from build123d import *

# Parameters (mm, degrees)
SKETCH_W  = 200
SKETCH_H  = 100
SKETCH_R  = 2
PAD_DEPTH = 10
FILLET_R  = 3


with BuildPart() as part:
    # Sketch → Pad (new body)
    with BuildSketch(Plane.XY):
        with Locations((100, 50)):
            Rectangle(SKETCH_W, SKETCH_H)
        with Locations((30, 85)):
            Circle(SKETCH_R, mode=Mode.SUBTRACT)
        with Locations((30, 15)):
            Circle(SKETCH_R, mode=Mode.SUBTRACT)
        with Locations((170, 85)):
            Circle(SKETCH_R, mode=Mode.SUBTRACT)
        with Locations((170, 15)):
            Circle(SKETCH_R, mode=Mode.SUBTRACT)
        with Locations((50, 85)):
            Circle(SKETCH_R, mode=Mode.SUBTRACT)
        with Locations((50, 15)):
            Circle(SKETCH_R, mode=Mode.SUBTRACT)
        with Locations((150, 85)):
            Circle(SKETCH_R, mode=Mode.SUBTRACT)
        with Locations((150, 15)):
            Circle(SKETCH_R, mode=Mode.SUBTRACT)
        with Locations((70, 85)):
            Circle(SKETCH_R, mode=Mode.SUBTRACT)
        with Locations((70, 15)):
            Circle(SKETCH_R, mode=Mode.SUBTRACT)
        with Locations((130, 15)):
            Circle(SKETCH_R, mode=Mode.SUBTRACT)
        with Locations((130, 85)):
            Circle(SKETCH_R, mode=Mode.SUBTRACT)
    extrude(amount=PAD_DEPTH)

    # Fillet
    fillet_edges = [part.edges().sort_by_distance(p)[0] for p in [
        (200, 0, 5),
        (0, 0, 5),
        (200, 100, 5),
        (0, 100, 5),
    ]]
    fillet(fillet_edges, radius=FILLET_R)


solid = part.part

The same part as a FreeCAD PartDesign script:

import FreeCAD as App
import Part
import Sketcher
Q = App.Units.Quantity


def edges_at(feature, points):
    """Names of the edges that pass closest to the given points."""
    edges = feature.Shape.Edges
    near = lambda p: min(range(len(edges)), key=lambda i: edges[i].distToShape(Part.Vertex(*p))[0])
    return sorted({f"Edge{near(p) + 1}" for p in points})

doc = App.newDocument("Part")
body = doc.addObject("PartDesign::Body", "Body")

# Sketch on XY plane
sketch1 = doc.addObject("Sketcher::SketchObject", "Sketch")
body.addObject(sketch1)
sketch1.AttachmentSupport = (doc.XY_Plane, [""])
sketch1.MapMode = "FlatFace"
sketch1.addGeometry(Part.LineSegment(App.Vector(0, 100, 0), App.Vector(0, 0, 0)), False)
sketch1.addGeometry(Part.LineSegment(App.Vector(0, 0, 0), App.Vector(200, 0, 0)), False)
sketch1.addGeometry(Part.LineSegment(App.Vector(200, 0, 0), App.Vector(200, 100, 0)), False)
sketch1.addGeometry(Part.LineSegment(App.Vector(200, 100, 0), App.Vector(0, 100, 0)), False)
sketch1.addGeometry(Part.Circle(App.Vector(30, 15, 0), App.Vector(0, 0, 1), 2), False)
sketch1.addGeometry(Part.Circle(App.Vector(50, 15, 0), App.Vector(0, 0, 1), 2), False)
sketch1.addGeometry(Part.Circle(App.Vector(70, 15, 0), App.Vector(0, 0, 1), 2), False)
sketch1.addGeometry(Part.Circle(App.Vector(130, 15, 0), App.Vector(0, 0, 1), 2), False)
sketch1.addGeometry(Part.Circle(App.Vector(150, 15, 0), App.Vector(0, 0, 1), 2), False)
sketch1.addGeometry(Part.Circle(App.Vector(170, 15, 0), App.Vector(0, 0, 1), 2), False)
sketch1.addGeometry(Part.Circle(App.Vector(30, 85, 0), App.Vector(0, 0, 1), 2), False)
sketch1.addGeometry(Part.Circle(App.Vector(50, 85, 0), App.Vector(0, 0, 1), 2), False)
sketch1.addGeometry(Part.Circle(App.Vector(70, 85, 0), App.Vector(0, 0, 1), 2), False)
sketch1.addGeometry(Part.Circle(App.Vector(130, 85, 0), App.Vector(0, 0, 1), 2), False)
sketch1.addGeometry(Part.Circle(App.Vector(150, 85, 0), App.Vector(0, 0, 1), 2), False)
sketch1.addGeometry(Part.Circle(App.Vector(170, 85, 0), App.Vector(0, 0, 1), 2), False)
sketch1.addConstraint(Sketcher.Constraint("Coincident", 0, 2, 1, 1))
sketch1.addConstraint(Sketcher.Constraint("Coincident", 1, 2, 2, 1))
sketch1.addConstraint(Sketcher.Constraint("Coincident", 2, 2, 3, 1))
sketch1.addConstraint(Sketcher.Constraint("Coincident", 3, 2, 0, 1))
sketch1.addConstraint(Sketcher.Constraint("Vertical", 0))
sketch1.addConstraint(Sketcher.Constraint("Horizontal", 1))
sketch1.addConstraint(Sketcher.Constraint("Vertical", 2))
sketch1.addConstraint(Sketcher.Constraint("Horizontal", 3))
sketch1.addConstraint(Sketcher.Constraint("Coincident", 0, 2, -1, 1))
sketch1.addConstraint(Sketcher.Constraint("Equal", 4, 5))
sketch1.addConstraint(Sketcher.Constraint("Equal", 5, 6))
sketch1.addConstraint(Sketcher.Constraint("Equal", 6, 7))
sketch1.addConstraint(Sketcher.Constraint("Equal", 7, 8))
sketch1.addConstraint(Sketcher.Constraint("Equal", 8, 9))
sketch1.addConstraint(Sketcher.Constraint("Equal", 9, 10))
sketch1.addConstraint(Sketcher.Constraint("Equal", 10, 11))
sketch1.addConstraint(Sketcher.Constraint("Equal", 11, 12))
sketch1.addConstraint(Sketcher.Constraint("Equal", 12, 13))
sketch1.addConstraint(Sketcher.Constraint("Equal", 13, 14))
sketch1.addConstraint(Sketcher.Constraint("Equal", 14, 15))
sketch1.addConstraint(Sketcher.Constraint("Horizontal", 4, 3, 5, 3))
sketch1.addConstraint(Sketcher.Constraint("Horizontal", 5, 3, 6, 3))
sketch1.addConstraint(Sketcher.Constraint("Horizontal", 6, 3, 7, 3))
sketch1.addConstraint(Sketcher.Constraint("Horizontal", 7, 3, 8, 3))
sketch1.addConstraint(Sketcher.Constraint("Horizontal", 8, 3, 9, 3))
sketch1.addConstraint(Sketcher.Constraint("Horizontal", 10, 3, 11, 3))
sketch1.addConstraint(Sketcher.Constraint("Horizontal", 11, 3, 12, 3))
sketch1.addConstraint(Sketcher.Constraint("Horizontal", 12, 3, 13, 3))
sketch1.addConstraint(Sketcher.Constraint("Horizontal", 13, 3, 14, 3))
sketch1.addConstraint(Sketcher.Constraint("Horizontal", 14, 3, 15, 3))
sketch1.addConstraint(Sketcher.Constraint("Vertical", 4, 3, 10, 3))
sketch1.addConstraint(Sketcher.Constraint("Vertical", 5, 3, 11, 3))
sketch1.addConstraint(Sketcher.Constraint("Vertical", 6, 3, 12, 3))
sketch1.addConstraint(Sketcher.Constraint("Vertical", 7, 3, 13, 3))
sketch1.addConstraint(Sketcher.Constraint("Vertical", 8, 3, 14, 3))
sketch1.addConstraint(Sketcher.Constraint("Vertical", 9, 3, 15, 3))
sketch1.addConstraint(Sketcher.Constraint("Diameter", 4, Q("4 mm")))
sketch1.addConstraint(Sketcher.Constraint("DistanceX", 1, 1, 1, 2, Q("200 mm")))
sketch1.addConstraint(Sketcher.Constraint("DistanceY", 0, 2, 0, 1, Q("100 mm")))
sketch1.addConstraint(Sketcher.Constraint("DistanceX", -1, 1, 4, 3, Q("30 mm")))
sketch1.addConstraint(Sketcher.Constraint("DistanceY", -1, 1, 4, 3, Q("15 mm")))
sketch1.addConstraint(Sketcher.Constraint("DistanceX", -1, 1, 5, 3, Q("50 mm")))
sketch1.addConstraint(Sketcher.Constraint("DistanceX", -1, 1, 6, 3, Q("70 mm")))
sketch1.addConstraint(Sketcher.Constraint("DistanceX", -1, 1, 7, 3, Q("130 mm")))
sketch1.addConstraint(Sketcher.Constraint("DistanceX", -1, 1, 8, 3, Q("150 mm")))
sketch1.addConstraint(Sketcher.Constraint("DistanceX", -1, 1, 9, 3, Q("170 mm")))
sketch1.addConstraint(Sketcher.Constraint("DistanceY", -1, 1, 10, 3, Q("85 mm")))
pad1 = doc.addObject("PartDesign::Pad", "Pad")
body.addObject(pad1)
pad1.Profile = sketch1
pad1.Length = 10
doc.recompute()

fillet = doc.addObject("PartDesign::Fillet", "Fillet")
body.addObject(fillet)
fillet.Base = (pad1, edges_at(pad1, [
    (200, 0, 5),
    (0, 0, 5),
    (200, 100, 5),
    (0, 100, 5),
]))
fillet.Radius = 3

doc.recompute()
